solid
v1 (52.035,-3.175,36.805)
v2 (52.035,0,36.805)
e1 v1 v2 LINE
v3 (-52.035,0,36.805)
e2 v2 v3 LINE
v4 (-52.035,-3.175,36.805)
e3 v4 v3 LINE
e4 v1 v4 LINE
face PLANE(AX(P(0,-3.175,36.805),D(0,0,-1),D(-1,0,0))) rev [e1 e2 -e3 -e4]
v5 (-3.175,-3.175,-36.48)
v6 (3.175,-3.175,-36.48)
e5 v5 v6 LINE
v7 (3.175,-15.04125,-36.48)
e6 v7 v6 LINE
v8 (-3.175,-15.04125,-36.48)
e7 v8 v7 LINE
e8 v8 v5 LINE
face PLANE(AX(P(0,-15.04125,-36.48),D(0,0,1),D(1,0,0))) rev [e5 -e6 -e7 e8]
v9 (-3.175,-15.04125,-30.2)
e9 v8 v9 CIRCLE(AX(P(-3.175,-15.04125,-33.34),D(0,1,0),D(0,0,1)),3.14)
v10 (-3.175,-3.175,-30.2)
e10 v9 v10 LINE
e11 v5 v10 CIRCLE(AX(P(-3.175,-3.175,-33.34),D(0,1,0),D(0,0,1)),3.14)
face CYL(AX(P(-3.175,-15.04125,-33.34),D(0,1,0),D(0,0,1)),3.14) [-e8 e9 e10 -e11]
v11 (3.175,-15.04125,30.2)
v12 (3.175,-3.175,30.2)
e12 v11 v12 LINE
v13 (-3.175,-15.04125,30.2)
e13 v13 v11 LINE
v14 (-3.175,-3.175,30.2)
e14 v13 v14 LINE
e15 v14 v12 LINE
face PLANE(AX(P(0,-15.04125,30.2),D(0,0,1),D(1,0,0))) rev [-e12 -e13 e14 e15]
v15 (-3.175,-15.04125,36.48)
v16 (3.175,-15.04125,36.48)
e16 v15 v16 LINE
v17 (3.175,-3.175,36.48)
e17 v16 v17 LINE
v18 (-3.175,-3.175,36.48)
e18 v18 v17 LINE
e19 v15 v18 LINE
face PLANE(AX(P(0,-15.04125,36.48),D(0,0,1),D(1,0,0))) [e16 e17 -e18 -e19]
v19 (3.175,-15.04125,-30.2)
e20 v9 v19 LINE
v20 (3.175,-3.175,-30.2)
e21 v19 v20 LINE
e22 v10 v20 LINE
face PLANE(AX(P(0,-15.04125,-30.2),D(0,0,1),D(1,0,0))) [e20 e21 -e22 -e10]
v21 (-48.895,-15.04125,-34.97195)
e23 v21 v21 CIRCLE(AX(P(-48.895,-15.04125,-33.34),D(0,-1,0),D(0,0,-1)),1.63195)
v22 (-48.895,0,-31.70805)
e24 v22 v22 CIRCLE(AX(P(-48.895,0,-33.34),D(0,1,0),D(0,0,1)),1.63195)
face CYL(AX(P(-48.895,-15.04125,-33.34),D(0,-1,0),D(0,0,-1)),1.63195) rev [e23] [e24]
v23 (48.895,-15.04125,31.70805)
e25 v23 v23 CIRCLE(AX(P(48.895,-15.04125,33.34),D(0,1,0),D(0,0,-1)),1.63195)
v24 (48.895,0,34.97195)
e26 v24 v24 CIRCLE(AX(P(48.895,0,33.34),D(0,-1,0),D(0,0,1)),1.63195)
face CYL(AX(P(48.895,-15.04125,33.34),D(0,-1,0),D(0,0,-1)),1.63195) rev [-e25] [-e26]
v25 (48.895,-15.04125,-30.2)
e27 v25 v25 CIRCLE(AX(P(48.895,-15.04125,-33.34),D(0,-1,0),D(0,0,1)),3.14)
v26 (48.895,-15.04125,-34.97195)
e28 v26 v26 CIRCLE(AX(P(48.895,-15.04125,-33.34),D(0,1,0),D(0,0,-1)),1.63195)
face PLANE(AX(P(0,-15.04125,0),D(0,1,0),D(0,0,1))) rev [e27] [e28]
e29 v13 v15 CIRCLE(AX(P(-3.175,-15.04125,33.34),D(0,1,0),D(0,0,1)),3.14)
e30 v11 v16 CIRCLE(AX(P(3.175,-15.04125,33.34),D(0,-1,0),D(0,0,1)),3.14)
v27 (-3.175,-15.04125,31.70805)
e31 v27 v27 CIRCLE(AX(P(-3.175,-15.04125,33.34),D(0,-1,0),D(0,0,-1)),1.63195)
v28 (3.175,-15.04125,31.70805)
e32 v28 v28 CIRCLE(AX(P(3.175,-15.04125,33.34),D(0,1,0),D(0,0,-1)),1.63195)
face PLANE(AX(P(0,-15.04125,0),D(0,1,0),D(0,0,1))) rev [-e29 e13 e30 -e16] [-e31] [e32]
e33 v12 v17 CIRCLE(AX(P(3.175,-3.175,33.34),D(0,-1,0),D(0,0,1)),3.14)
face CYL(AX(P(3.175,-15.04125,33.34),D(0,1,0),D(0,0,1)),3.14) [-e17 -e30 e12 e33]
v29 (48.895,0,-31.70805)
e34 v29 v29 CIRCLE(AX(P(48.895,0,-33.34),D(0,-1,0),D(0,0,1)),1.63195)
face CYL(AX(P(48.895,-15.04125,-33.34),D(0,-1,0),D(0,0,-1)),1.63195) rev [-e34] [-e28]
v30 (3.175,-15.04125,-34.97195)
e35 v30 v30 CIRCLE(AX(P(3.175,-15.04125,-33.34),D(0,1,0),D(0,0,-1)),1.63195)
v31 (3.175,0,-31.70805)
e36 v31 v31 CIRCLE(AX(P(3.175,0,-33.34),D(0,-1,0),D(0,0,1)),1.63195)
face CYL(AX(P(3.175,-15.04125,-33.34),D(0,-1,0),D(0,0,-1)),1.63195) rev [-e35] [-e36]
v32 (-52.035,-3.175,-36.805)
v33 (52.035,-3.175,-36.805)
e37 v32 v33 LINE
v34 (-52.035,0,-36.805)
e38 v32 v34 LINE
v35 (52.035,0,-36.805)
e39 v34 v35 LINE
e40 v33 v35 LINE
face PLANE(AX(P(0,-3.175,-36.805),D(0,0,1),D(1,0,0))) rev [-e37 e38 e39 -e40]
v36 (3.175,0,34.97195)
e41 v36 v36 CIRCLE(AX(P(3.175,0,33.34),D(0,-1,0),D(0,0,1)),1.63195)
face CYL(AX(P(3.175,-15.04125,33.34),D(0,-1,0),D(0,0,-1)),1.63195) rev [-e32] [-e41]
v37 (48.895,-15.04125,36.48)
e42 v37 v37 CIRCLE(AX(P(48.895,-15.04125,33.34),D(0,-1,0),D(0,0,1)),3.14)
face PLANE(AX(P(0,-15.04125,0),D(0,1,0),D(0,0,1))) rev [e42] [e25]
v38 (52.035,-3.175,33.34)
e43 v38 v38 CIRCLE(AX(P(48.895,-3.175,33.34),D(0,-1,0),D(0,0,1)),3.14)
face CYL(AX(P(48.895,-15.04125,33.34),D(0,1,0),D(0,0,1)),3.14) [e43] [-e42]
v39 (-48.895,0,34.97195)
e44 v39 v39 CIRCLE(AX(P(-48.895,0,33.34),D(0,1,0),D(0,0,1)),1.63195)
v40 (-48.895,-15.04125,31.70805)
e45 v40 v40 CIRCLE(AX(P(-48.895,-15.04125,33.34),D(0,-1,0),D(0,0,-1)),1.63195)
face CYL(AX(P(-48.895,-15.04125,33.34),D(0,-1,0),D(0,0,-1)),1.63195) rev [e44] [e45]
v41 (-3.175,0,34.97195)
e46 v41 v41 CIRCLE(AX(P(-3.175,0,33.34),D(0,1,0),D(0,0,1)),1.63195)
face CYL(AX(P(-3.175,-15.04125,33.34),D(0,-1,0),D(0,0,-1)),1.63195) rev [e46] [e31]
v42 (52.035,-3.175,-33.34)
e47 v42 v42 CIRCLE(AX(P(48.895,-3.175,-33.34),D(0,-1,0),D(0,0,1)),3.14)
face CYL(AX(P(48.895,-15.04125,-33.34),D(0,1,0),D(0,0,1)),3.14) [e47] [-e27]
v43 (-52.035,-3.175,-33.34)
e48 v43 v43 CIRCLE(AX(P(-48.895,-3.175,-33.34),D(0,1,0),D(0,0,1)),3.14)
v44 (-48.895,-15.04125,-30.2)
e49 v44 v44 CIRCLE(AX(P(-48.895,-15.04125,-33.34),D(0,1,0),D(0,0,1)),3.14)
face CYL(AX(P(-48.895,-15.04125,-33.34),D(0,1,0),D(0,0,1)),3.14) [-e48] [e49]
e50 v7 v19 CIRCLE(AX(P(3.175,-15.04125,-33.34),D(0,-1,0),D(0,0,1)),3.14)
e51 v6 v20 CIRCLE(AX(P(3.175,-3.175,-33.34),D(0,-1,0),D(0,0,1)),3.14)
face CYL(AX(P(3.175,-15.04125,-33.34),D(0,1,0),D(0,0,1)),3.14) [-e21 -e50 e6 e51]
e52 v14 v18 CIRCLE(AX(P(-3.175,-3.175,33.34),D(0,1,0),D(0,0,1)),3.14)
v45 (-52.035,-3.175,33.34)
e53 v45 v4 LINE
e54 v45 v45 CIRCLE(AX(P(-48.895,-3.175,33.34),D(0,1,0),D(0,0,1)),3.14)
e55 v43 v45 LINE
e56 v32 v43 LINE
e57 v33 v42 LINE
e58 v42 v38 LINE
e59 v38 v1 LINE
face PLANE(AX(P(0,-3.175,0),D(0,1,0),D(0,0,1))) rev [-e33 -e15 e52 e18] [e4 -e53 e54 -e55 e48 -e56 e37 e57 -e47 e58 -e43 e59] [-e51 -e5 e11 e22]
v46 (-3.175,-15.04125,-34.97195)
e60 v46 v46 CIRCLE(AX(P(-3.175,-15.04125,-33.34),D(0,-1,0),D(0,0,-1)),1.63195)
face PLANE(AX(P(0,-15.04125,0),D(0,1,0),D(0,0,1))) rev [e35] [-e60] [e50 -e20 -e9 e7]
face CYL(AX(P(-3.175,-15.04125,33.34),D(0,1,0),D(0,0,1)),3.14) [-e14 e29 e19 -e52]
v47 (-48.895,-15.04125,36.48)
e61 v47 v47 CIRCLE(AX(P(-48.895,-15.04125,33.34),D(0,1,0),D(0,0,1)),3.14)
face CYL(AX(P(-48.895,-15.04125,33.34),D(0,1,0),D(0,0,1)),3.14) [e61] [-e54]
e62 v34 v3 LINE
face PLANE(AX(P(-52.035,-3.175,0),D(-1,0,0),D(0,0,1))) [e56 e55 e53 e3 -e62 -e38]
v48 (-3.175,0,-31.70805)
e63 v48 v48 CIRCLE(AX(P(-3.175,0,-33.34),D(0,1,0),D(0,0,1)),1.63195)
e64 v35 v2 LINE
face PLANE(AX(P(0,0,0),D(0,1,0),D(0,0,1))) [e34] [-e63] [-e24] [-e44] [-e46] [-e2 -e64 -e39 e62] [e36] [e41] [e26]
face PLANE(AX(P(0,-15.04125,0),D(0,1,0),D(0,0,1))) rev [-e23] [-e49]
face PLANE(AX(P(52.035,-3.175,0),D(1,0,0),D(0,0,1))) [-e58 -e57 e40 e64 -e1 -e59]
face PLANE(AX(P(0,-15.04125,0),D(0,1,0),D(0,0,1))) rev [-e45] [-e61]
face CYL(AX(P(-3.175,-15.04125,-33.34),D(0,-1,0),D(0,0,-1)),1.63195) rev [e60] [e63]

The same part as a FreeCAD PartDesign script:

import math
import FreeCAD as App
import Part
import Sketcher
from FreeCAD import Vector
Q = App.Units.Quantity

doc = App.newDocument("Part")
body = doc.addObject("PartDesign::Body", "Body")

sketch1 = body.newObject("Sketcher::SketchObject", "Sketch")
sketch1.AttachmentSupport = (doc.getObject("XZ_Plane"), [""])
sketch1.MapMode = "FlatFace"
sketch1.addGeometry(Part.LineSegment(Vector(0, -37, 0), Vector(-52, -37, 0)), False)
sketch1.addGeometry(Part.LineSegment(Vector(-52, -37, 0), Vector(-52, 37, 0)), False)
sketch1.addGeometry(Part.LineSegment(Vector(-52, 37, 0), Vector(0, 37, 0)), False)
sketch1.addGeometry(Part.LineSegment(Vector(0, 37, 0), Vector(0, -37, 0)), False)
sketch1.addConstraint(Sketcher.Constraint("Coincident", 0, 2, 1, 1))
sketch1.addConstraint(Sketcher.Constraint("Coincident", 1, 2, 2, 1))
sketch1.addConstraint(Sketcher.Constraint("Coincident", 2, 2, 3, 1))
sketch1.addConstraint(Sketcher.Constraint("Coincident", 3, 2, 0, 1))
sketch1.addConstraint(Sketcher.Constraint("Horizontal", 0))
sketch1.addConstraint(Sketcher.Constraint("Vertical", 1))
sketch1.addConstraint(Sketcher.Constraint("Horizontal", 2))
sketch1.addConstraint(Sketcher.Constraint("Vertical", 3))
sketch1.addConstraint(Sketcher.Constraint("Symmetric", 2, 2, 3, 2, -1, 1))
sketch1.addConstraint(Sketcher.Constraint("DistanceX", 0, 2, 0, 1, 52.035))
sketch1.addConstraint(Sketcher.Constraint("DistanceY", 1, 1, 1, 2, 73.61))
pad1 = body.newObject("PartDesign::Pad", "Pad")
pad1.Profile = sketch1
pad1.Length = Q("0.125 in")

sketch2 = body.newObject("Sketcher::SketchObject", "Sketch001")
sketch2.AttachmentSupport = (doc.getObject("XZ_Plane"), [""])
sketch2.MapMode = "FlatFace"
sketch2.addGeometry(Part.LineSegment(Vector(-3.2, -30.2, 0), Vector(0, -30.2, 0)), False)
sketch2.addGeometry(Part.LineSegment(Vector(0, -30.2, 0), Vector(0, -36.5, 0)), False)
sketch2.addGeometry(Part.LineSegment(Vector(0, -36.5, 0), Vector(-3.2, -36.5, 0)), False)
sketch2.addGeometry(Part.ArcOfCircle(Part.Circle(Vector(-3.2, -33.3, 0), Vector(0, 0, 1), 3.1), math.radians(90), math.radians(270)), False)
sketch2.addGeometry(Part.LineSegment(Vector(-3.2, 36.5, 0), Vector(0, 36.5, 0)), False)
sketch2.addGeometry(Part.LineSegment(Vector(0, 36.5, 0), Vector(0, 30.2, 0)), False)
sketch2.addGeometry(Part.LineSegment(Vector(0, 30.2, 0), Vector(-3.2, 30.2, 0)), False)
sketch2.addGeometry(Part.ArcOfCircle(Part.Circle(Vector(-3.2, 33.3, 0), Vector(0, 0, 1), 3.1), math.radians(90), math.radians(270)), False)
sketch2.addGeometry(Part.Circle(Vector(-48.9, -33.3, 0), Vector(0, 0, 1), 3.1), False)
sketch2.addGeometry(Part.Circle(Vector(-48.9, 33.3, 0), Vector(0, 0, 1), 3.1), False)
sketch2.addConstraint(Sketcher.Constraint("Coincident", 0, 2, 1, 1))
sketch2.addConstraint(Sketcher.Constraint("Coincident", 1, 2, 2, 1))
sketch2.addConstraint(Sketcher.Constraint("Tangent", 2, 2, 3, 2))
sketch2.addConstraint(Sketcher.Constraint("Tangent", 3, 1, 0, 1))
sketch2.addConstraint(Sketcher.Constraint("Coincident", 4, 2, 5, 1))
sketch2.addConstraint(Sketcher.Constraint("Coincident", 5, 2, 6, 1))
sketch2.addConstraint(Sketcher.Constraint("Tangent", 6, 2, 7, 2))
sketch2.addConstraint(Sketcher.Constraint("Tangent", 7, 1, 4, 1))
sketch2.addConstraint(Sketcher.Constraint("Horizontal", 0))
sketch2.addConstraint(Sketcher.Constraint("Vertical", 1))
sketch2.addConstraint(Sketcher.Constraint("Horizontal", 2))
sketch2.addConstraint(Sketcher.Constraint("Horizontal", 4))
sketch2.addConstraint(Sketcher.Constraint("Vertical", 5))
sketch2.addConstraint(Sketcher.Constraint("Horizontal", 6))
sketch2.addConstraint(Sketcher.Constraint("Equal", 3, 7))
sketch2.addConstraint(Sketcher.Constraint("Equal", 7, 8))
sketch2.addConstraint(Sketcher.Constraint("Equal", 8, 9))
sketch2.addConstraint(Sketcher.Constraint("Symmetric", 1, 2, 4, 2, -1, 1))
sketch2.addConstraint(Sketcher.Constraint("Symmetric", 8, 3, 9, 3, -1))
sketch2.addConstraint(Sketcher.Constraint("PointOnObject", 0, 2, -2))
sketch2.addConstraint(Sketcher.Constraint("Horizontal", 3, 3, 8, 3))
sketch2.addConstraint(Sketcher.Constraint("Vertical", 3, 3, 7, 3))
sketch2.addConstraint(Sketcher.Constraint("DistanceX", 8, 3, 3, 3, Q("1.8 in")))
sketch2.addConstraint(Sketcher.Constraint("Diameter", 8, 6.28))
sketch2.addConstraint(Sketcher.Constraint("DistanceX", 0, 1, 0, 2, Q("0.125 in")))
sketch2.addConstraint(Sketcher.Constraint("DistanceY", 3, 3, -1, 1, 33.34))
pad2 = body.newObject("PartDesign::Pad", "Pad001")
pad2.Profile = sketch2
pad2.Length = 15.04125

sketch3 = body.newObject("Sketcher::SketchObject", "Sketch002")
sketch3.AttachmentSupport = (doc.getObject("XZ_Plane"), [""])
sketch3.MapMode = "FlatFace"
sketch3.AttachmentOffset = App.Placement(Vector(0, 0, 15.04125), App.Rotation())
sketch3.addGeometry(Part.Circle(Vector(-48.9, -33.3, 0), Vector(0, 0, 1), 1.6), False)
sketch3.addGeometry(Part.Circle(Vector(-3.2, -33.3, 0), Vector(0, 0, 1), 1.6), False)
sketch3.addGeometry(Part.Circle(Vector(-3.2, 33.3, 0), Vector(0, 0, 1), 1.6), False)
sketch3.addGeometry(Part.Circle(Vector(-48.9, 33.3, 0), Vector(0, 0, 1), 1.6), False)
sketch3.addConstraint(Sketcher.Constraint("Equal", 0, 1))
sketch3.addConstraint(Sketcher.Constraint("Equal", 1, 2))
sketch3.addConstraint(Sketcher.Constraint("Equal", 2, 3))
sketch3.addConstraint(Sketcher.Constraint("Symmetric", 1, 3, 2, 3, -1))
sketch3.addConstraint(Sketcher.Constraint("Symmetric", 0, 3, 3, 3, -1))
sketch3.addConstraint(Sketcher.Constraint("Horizontal", 0, 3, 1, 3))
sketch3.addConstraint(Sketcher.Constraint("Diameter", 0, Q("0.1285 in")))
sketch3.addConstraint(Sketcher.Constraint("DistanceX", 0, 3, 1, 3, Q("1.8 in")))
sketch3.addConstraint(Sketcher.Constraint("DistanceX", 0, 3, -1, 1, Q("1.925 in")))
sketch3.addConstraint(Sketcher.Constraint("DistanceY", 0, 3, -1, 1, 33.34))
doc.recompute()
hole = body.newObject("PartDesign::Hole", "Hole")
hole.Profile = sketch3
hole.ThreadType = "None"
hole.Diameter = Q("0.1285 in")
hole.DepthType = "Dimension"
hole.Depth = Q("1 in")
hole.DrillPoint = "Angled"
hole.DrillPointAngle = 118
body2 = doc.addObject("PartDesign::Body", "Body001")
doc.recompute()

body2.BaseFeature = body
doc.recompute()

mirroring = doc.addObject("Part::Mirroring", "Mirroring")
mirroring.Source = body
mirroring.Base = Vector(0, -3.175, 0)
mirroring.Normal = Vector(-1, 0, 0)
body3 = doc.addObject("PartDesign::Body", "Body002")
body3.BaseFeature = mirroring
boolean = body2.newObject("PartDesign::Boolean", "Boolean")
boolean.Type = "Fuse"
boolean.addObjects([body3])
doc.recompute()
mirroring.Visibility = False

doc.recompute()
